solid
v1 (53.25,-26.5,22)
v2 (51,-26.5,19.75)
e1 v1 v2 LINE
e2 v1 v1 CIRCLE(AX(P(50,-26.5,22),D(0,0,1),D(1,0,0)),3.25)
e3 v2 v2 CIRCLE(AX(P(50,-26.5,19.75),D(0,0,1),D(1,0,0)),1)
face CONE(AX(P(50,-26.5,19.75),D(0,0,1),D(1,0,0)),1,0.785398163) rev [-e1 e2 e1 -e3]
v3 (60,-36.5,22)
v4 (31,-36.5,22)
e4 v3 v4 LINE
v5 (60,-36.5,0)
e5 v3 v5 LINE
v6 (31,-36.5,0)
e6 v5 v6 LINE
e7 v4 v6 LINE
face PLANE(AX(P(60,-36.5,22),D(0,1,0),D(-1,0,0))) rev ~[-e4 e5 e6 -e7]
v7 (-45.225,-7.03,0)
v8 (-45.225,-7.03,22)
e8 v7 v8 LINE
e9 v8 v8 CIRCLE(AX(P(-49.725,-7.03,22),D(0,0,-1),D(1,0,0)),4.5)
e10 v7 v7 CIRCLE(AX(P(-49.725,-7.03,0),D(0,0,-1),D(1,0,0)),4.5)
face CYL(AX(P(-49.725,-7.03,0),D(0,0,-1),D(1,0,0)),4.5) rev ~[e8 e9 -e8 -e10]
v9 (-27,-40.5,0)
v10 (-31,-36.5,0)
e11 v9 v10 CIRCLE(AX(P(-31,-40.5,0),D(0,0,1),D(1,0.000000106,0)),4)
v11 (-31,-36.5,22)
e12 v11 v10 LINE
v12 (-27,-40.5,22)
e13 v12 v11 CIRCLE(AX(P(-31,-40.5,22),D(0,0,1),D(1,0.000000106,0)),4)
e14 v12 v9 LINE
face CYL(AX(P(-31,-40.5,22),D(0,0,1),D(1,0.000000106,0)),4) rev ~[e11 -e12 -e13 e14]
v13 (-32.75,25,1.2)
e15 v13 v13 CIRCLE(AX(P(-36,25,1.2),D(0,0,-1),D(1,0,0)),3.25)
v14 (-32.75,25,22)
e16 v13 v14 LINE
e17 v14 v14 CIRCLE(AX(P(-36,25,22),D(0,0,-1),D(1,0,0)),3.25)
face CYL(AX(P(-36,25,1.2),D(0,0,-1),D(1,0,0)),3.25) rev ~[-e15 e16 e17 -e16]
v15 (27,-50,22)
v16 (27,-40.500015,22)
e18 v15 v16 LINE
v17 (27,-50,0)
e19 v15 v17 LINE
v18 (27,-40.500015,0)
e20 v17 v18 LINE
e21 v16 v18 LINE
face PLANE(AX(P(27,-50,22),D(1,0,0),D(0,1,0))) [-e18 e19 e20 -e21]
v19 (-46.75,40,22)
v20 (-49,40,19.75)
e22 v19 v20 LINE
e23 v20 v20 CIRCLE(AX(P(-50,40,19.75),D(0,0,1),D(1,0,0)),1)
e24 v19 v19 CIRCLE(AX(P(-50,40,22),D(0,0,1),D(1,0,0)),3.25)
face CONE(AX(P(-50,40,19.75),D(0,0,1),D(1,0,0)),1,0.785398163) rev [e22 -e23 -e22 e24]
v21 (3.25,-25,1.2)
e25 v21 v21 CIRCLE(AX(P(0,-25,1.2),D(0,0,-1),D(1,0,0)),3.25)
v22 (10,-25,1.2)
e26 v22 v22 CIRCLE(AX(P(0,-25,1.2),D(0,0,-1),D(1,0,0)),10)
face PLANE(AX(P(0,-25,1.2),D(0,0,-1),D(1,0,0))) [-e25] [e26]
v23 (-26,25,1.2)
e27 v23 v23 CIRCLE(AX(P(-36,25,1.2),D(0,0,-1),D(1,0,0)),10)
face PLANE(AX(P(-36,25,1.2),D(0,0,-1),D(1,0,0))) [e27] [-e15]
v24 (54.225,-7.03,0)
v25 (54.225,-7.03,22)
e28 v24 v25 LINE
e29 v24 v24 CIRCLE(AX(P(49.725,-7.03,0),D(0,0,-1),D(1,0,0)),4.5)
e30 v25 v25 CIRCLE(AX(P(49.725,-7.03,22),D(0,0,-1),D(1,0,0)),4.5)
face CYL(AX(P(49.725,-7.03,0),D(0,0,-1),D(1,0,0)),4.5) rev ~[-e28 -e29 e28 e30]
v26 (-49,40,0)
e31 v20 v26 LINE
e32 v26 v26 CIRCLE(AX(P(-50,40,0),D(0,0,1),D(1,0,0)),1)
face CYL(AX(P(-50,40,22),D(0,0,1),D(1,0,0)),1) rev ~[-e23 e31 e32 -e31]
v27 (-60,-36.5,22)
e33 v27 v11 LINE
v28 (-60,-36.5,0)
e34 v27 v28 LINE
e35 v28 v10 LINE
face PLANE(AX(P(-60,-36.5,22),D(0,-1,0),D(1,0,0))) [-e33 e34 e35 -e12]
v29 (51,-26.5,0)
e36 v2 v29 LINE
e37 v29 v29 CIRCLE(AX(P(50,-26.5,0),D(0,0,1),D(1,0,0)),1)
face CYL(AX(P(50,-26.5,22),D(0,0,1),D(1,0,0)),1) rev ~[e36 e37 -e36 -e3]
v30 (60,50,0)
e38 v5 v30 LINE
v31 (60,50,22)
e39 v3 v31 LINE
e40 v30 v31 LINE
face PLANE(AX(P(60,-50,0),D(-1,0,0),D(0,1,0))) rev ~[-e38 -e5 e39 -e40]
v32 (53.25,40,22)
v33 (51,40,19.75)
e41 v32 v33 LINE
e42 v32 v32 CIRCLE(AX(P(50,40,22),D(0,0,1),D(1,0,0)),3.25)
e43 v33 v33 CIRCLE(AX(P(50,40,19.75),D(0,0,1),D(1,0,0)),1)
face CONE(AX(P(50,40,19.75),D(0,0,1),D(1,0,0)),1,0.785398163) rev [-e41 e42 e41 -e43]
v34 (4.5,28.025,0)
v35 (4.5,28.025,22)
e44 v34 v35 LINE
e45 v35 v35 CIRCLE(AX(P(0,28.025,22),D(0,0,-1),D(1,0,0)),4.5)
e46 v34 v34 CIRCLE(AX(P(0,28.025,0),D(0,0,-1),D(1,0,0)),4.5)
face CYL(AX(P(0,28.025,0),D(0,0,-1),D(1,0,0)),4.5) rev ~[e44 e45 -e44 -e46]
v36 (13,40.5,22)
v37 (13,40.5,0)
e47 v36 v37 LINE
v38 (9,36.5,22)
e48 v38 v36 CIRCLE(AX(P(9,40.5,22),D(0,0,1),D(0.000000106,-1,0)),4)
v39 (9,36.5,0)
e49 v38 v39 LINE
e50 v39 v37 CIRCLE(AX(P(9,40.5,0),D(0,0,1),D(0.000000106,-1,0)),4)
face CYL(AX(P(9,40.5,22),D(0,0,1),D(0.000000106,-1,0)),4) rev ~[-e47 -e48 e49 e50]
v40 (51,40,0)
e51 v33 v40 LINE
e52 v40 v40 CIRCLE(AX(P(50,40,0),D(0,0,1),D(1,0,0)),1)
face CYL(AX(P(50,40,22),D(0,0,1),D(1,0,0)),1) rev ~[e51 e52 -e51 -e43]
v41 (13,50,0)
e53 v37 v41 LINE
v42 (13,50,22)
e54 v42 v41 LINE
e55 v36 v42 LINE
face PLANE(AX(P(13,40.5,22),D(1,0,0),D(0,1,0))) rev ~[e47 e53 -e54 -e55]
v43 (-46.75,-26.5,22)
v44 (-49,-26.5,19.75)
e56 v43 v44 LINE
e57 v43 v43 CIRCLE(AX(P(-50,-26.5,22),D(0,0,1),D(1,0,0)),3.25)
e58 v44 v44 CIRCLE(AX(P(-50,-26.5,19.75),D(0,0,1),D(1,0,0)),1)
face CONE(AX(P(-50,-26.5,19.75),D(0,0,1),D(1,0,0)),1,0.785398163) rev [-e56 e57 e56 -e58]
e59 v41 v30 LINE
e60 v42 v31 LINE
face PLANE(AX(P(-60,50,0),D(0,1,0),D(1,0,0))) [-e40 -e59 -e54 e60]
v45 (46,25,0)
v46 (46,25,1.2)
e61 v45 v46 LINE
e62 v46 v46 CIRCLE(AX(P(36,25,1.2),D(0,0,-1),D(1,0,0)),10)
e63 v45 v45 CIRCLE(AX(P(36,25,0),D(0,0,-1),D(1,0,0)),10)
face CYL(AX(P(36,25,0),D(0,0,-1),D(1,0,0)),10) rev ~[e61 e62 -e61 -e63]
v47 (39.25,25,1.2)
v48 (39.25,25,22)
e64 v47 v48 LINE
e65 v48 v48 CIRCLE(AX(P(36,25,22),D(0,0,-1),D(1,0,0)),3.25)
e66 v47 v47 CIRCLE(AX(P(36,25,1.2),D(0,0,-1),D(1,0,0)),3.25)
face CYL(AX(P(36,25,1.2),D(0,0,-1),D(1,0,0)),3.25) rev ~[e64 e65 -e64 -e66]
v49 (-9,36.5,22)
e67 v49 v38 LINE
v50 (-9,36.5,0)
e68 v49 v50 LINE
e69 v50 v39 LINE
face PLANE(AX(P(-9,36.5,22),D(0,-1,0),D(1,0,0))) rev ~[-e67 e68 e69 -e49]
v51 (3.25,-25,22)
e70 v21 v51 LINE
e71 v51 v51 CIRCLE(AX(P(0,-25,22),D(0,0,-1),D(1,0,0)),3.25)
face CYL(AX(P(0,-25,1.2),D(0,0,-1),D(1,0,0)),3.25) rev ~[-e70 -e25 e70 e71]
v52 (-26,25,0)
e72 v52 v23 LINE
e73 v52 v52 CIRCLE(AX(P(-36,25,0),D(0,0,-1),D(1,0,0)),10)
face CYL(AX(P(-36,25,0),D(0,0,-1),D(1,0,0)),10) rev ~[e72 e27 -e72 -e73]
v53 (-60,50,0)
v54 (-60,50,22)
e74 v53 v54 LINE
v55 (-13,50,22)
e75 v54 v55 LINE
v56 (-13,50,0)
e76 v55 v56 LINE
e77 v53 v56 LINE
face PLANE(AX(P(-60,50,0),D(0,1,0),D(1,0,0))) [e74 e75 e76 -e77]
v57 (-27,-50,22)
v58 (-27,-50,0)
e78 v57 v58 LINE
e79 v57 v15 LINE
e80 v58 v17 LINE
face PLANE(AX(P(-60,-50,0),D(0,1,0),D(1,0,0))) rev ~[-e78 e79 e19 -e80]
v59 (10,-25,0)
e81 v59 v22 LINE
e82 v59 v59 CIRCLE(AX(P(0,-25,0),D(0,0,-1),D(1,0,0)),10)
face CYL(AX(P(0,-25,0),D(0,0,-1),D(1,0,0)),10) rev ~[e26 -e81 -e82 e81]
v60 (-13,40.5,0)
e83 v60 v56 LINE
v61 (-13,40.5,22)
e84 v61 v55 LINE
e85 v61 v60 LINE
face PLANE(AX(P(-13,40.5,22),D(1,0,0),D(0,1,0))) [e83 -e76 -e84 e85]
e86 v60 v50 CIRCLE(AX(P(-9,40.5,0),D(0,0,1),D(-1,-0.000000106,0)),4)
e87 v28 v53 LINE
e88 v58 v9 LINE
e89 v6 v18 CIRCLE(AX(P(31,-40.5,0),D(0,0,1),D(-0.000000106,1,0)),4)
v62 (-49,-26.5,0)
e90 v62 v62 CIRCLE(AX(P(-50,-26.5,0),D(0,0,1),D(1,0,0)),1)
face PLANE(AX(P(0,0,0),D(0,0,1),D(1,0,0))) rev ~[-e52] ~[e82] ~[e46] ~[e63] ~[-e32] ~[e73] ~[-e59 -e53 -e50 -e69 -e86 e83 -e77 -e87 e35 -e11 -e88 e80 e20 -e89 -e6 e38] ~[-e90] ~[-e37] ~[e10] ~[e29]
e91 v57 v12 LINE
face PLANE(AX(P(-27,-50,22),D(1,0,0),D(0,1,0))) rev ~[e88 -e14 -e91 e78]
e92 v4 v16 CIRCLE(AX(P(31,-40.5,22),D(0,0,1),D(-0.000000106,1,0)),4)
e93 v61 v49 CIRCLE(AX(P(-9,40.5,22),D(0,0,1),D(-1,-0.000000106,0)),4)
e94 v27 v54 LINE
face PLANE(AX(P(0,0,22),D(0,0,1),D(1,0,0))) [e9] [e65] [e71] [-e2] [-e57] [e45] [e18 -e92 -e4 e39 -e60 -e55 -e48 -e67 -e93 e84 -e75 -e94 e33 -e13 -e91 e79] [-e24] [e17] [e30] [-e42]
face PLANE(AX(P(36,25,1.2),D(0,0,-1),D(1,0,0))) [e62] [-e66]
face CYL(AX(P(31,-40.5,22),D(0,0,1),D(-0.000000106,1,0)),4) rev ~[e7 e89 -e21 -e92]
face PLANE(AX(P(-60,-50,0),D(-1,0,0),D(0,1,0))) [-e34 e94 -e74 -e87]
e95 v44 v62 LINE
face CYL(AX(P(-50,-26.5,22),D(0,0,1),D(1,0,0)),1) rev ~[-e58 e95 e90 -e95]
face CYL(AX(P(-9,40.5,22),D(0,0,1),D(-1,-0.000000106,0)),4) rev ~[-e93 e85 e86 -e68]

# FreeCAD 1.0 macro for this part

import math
import FreeCAD as App
import Part
import Sketcher

V = App.Vector


def edges_at(feature, points):
    """Names of the edges that pass closest to the given points."""
    edges = feature.Shape.Edges
    near = lambda p: min(range(len(edges)), key=lambda i: edges[i].distToShape(Part.Vertex(*p))[0])
    return sorted({f"Edge{near(p) + 1}" for p in points})

doc = App.newDocument("Part")
body = doc.addObject("PartDesign::Body", "Body")

sketch1 = doc.addObject("Sketcher::SketchObject", "Sketch")
body.addObject(sketch1)
sketch1.AttachmentSupport = (doc.XY_Plane, [""])
sketch1.MapMode = "FlatFace"
sketch1.addGeometry(Part.LineSegment(V(-60, 50, 0), V(-60, -50, 0)), False)
sketch1.addGeometry(Part.LineSegment(V(-60, -50, 0), V(60, -50, 0)), False)
sketch1.addGeometry(Part.LineSegment(V(60, -50, 0), V(60, 50, 0)), False)
sketch1.addGeometry(Part.LineSegment(V(60, 50, 0), V(-60, 50, 0)), False)
sketch1.addConstraint(Sketcher.Constraint("Coincident", 0, 2, 1, 1))
sketch1.addConstraint(Sketcher.Constraint("Coincident", 1, 2, 2, 1))
sketch1.addConstraint(Sketcher.Constraint("Coincident", 2, 2, 3, 1))
sketch1.addConstraint(Sketcher.Constraint("Coincident", 3, 2, 0, 1))
sketch1.addConstraint(Sketcher.Constraint("Vertical", 0))
sketch1.addConstraint(Sketcher.Constraint("Horizontal", 1))
sketch1.addConstraint(Sketcher.Constraint("Vertical", 2))
sketch1.addConstraint(Sketcher.Constraint("Horizontal", 3))
sketch1.addConstraint(Sketcher.Constraint("Symmetric", 0, 2, 2, 2, -1, 1))
sketch1.addConstraint(Sketcher.Constraint("DistanceX", 1, 1, 1, 2, 120.0))
sketch1.addConstraint(Sketcher.Constraint("DistanceY", 0, 2, 0, 1, 100.0))
pad1 = doc.addObject("PartDesign::Pad", "Pad")
body.addObject(pad1)
pad1.Profile = sketch1
pad1.Length = 22

sketch2 = doc.addObject("Sketcher::SketchObject", "Sketch001")
body.addObject(sketch2)
sketch2.AttachmentSupport = (doc.XY_Plane, [""])
sketch2.MapMode = "FlatFace"
sketch2.addGeometry(Part.Circle(V(-49.725, -7.03, 0), V(0, 0, 1), 4.5), False)
sketch2.addGeometry(Part.Circle(V(0, 28.025, 0), V(0, 0, 1), 4.5), False)
sketch2.addGeometry(Part.Circle(V(49.725, -7.03, 0), V(0, 0, 1), 4.5), False)
sketch2.addConstraint(Sketcher.Constraint("Equal", 0, 1))
sketch2.addConstraint(Sketcher.Constraint("Equal", 1, 2))
sketch2.addConstraint(Sketcher.Constraint("Symmetric", 0, 3, 2, 3, -2))
sketch2.addConstraint(Sketcher.Constraint("PointOnObject", 1, 3, -2))
sketch2.addConstraint(Sketcher.Constraint("Diameter", 0, 9.0))
sketch2.addConstraint(Sketcher.Constraint("DistanceY", 0, 3, -1, 1, 7.03))
sketch2.addConstraint(Sketcher.Constraint("DistanceX", 0, 3, 2, 3, 99.45))
sketch2.addConstraint(Sketcher.Constraint("DistanceY", -1, 1, 1, 3, 28.025))
pocket1 = doc.addObject("PartDesign::Pocket", "Pocket")
body.addObject(pocket1)
pocket1.Profile = sketch2
pocket1.Type = "ThroughAll"
pocket1.Reversed = True

sketch3 = doc.addObject("Sketcher::SketchObject", "Sketch002")
body.addObject(sketch3)
sketch3.AttachmentSupport = (doc.XY_Plane, [""])
sketch3.MapMode = "FlatFace"
sketch3.AttachmentOffset = App.Placement(V(0, 0, 22), App.Rotation())
sketch3.addGeometry(Part.LineSegment(V(-60, -36.5, 0), V(-60, -50, 0)), False)
sketch3.addGeometry(Part.LineSegment(V(-60, -50, 0), V(-27, -50, 0)), False)
sketch3.addGeometry(Part.LineSegment(V(-27, -50, 0), V(-27, -40.5, 0)), False)
sketch3.addGeometry(Part.ArcOfCircle(Part.Circle(V(-31, -40.5, 0), V(0, 0, 1), 4), math.radians(0.000006), math.radians(89.999994)), False)
sketch3.addGeometry(Part.LineSegment(V(-31, -36.5, 0), V(-60, -36.5, 0)), False)
sketch3.addGeometry(Part.LineSegment(V(60, -50, 0), V(60, -36.5, 0)), False)
sketch3.addGeometry(Part.LineSegment(V(60, -36.5, 0), V(31, -36.5, 0)), False)
sketch3.addGeometry(Part.ArcOfCircle(Part.Circle(V(31, -40.5, 0), V(0, 0, 1), 4), math.radians(90.000006), math.radians(180.000209)), False)
sketch3.addGeometry(Part.LineSegment(V(27, -40.500015, 0), V(27, -50, 0)), False)
sketch3.addGeometry(Part.LineSegment(V(27, -50, 0), V(60, -50, 0)), False)
sketch3.addGeometry(Part.LineSegment(V(13, 50, 0), V(-13, 50, 0)), False)
sketch3.addGeometry(Part.LineSegment(V(-13, 50, 0), V(-13, 40.5, 0)), False)
sketch3.addGeometry(Part.ArcOfCircle(Part.Circle(V(-9, 40.5, 0), V(0, 0, 1), 4), math.radians(-179.999994), math.radians(-90.000006)), False)
sketch3.addGeometry(Part.LineSegment(V(-9, 36.5, 0), V(9, 36.5, 0)), False)
sketch3.addGeometry(Part.ArcOfCircle(Part.Circle(V(9, 40.5, 0), V(0, 0, 1), 4), math.radians(-89.999994), math.radians(-0.000006)), False)
sketch3.addGeometry(Part.LineSegment(V(13, 40.5, 0), V(13, 50, 0)), False)
sketch3.addConstraint(Sketcher.Constraint("Coincident", 0, 2, 1, 1))
sketch3.addConstraint(Sketcher.Constraint("Coincident", 1, 2, 2, 1))
sketch3.addConstraint(Sketcher.Constraint("Tangent", 2, 2, 3, 1))
sketch3.addConstraint(Sketcher.Constraint("Tangent", 3, 2, 4, 1))
sketch3.addConstraint(Sketcher.Constraint("Coincident", 4, 2, 0, 1))
sketch3.addConstraint(Sketcher.Constraint("Coincident", 5, 2, 6, 1))
sketch3.addConstraint(Sketcher.Constraint("Tangent", 6, 2, 7, 1))
sketch3.addConstraint(Sketcher.Constraint("Coincident", 7, 2, 8, 1))
sketch3.addConstraint(Sketcher.Constraint("Coincident", 8, 2, 9, 1))
sketch3.addConstraint(Sketcher.Constraint("Coincident", 9, 2, 5, 1))
sketch3.addConstraint(Sketcher.Constraint("Coincident", 10, 2, 11, 1))
sketch3.addConstraint(Sketcher.Constraint("Tangent", 11, 2, 12, 1))
sketch3.addConstraint(Sketcher.Constraint("Tangent", 12, 2, 13, 1))
sketch3.addConstraint(Sketcher.Constraint("Tangent", 13, 2, 14, 1))
sketch3.addConstraint(Sketcher.Constraint("Tangent", 14, 2, 15, 1))
sketch3.addConstraint(Sketcher.Constraint("Coincident", 15, 2, 10, 1))
sketch3.addConstraint(Sketcher.Constraint("Vertical", 0))
sketch3.addConstraint(Sketcher.Constraint("Horizontal", 1))
sketch3.addConstraint(Sketcher.Constraint("Vertical", 2))
sketch3.addConstraint(Sketcher.Constraint("Horizontal", 4))
sketch3.addConstraint(Sketcher.Constraint("Vertical", 5))
sketch3.addConstraint(Sketcher.Constraint("Horizontal", 6))
sketch3.addConstraint(Sketcher.Constraint("Vertical", 8))
sketch3.addConstraint(Sketcher.Constraint("Horizontal", 9))
sketch3.addConstraint(Sketcher.Constraint("Horizontal", 10))
sketch3.addConstraint(Sketcher.Constraint("Vertical", 11))
sketch3.addConstraint(Sketcher.Constraint("Horizontal", 13))
sketch3.addConstraint(Sketcher.Constraint("Vertical", 15))
sketch3.addConstraint(Sketcher.Constraint("Equal", 3, 7))
sketch3.addConstraint(Sketcher.Constraint("Equal", 7, 12))
sketch3.addConstraint(Sketcher.Constraint("Equal", 12, 14))
sketch3.addConstraint(Sketcher.Constraint("Symmetric", 3, 3, 7, 3, -2))
sketch3.addConstraint(Sketcher.Constraint("Symmetric", 0, 2, 9, 2, -2))
sketch3.addConstraint(Sketcher.Constraint("Equal", 2, 11))
sketch3.addConstraint(Sketcher.Constraint("Radius", 3, 4.0))
sketch3.addConstraint(Sketcher.Constraint("DistanceX", 1, 1, 1, 2, 33.0))
sketch3.addConstraint(Sketcher.Constraint("DistanceX", 10, 2, 10, 1, 26.0))
sketch3.addConstraint(Sketcher.Constraint("DistanceY", 0, 2, 0, 1, 13.5))
sketch3.addConstraint(Sketcher.Constraint("DistanceX", 3, 3, -1, 1, 31.0))
sketch3.addConstraint(Sketcher.Constraint("DistanceX", 12, 3, -1, 1, 9.0))
sketch3.addConstraint(Sketcher.Constraint("DistanceY", 0, 2, -1, 1, 50.0))
sketch3.addConstraint(Sketcher.Constraint("DistanceY", -1, 1, 10, 2, 50.0))
sketch3.addConstraint(Sketcher.Constraint("DistanceY", 8, 2, 8, 1, 9.499985))
pocket2 = doc.addObject("PartDesign::Pocket", "Pocket001")
body.addObject(pocket2)
pocket2.Profile = sketch3
pocket2.Type = "ThroughAll"

sketch4 = doc.addObject("Sketcher::SketchObject", "Sketch003")
body.addObject(sketch4)
sketch4.AttachmentSupport = (doc.XY_Plane, [""])
sketch4.MapMode = "FlatFace"
sketch4.AttachmentOffset = App.Placement(V(0, 0, 22), App.Rotation())
sketch4.addGeometry(Part.Circle(V(50, -26.5, 0), V(0, 0, 1), 1), False)
sketch4.addGeometry(Part.Circle(V(-50, -26.5, 0), V(0, 0, 1), 1), False)
sketch4.addGeometry(Part.Circle(V(50, 40, 0), V(0, 0, 1), 1), False)
sketch4.addGeometry(Part.Circle(V(-50, 40, 0), V(0, 0, 1), 1), False)
sketch4.addConstraint(Sketcher.Constraint("Equal", 0, 1))
sketch4.addConstraint(Sketcher.Constraint("Equal", 1, 2))
sketch4.addConstraint(Sketcher.Constraint("Equal", 2, 3))
sketch4.addConstraint(Sketcher.Constraint("Symmetric", 0, 3, 1, 3, -2))
sketch4.addConstraint(Sketcher.Constraint("Symmetric", 2, 3, 3, 3, -2))
sketch4.addConstraint(Sketcher.Constraint("Vertical", 0, 3, 2, 3))
sketch4.addConstraint(Sketcher.Constraint("Diameter", 0, 2.0))
sketch4.addConstraint(Sketcher.Constraint("DistanceX", -1, 1, 0, 3, 50.0))
sketch4.addConstraint(Sketcher.Constraint("DistanceY", -1, 1, 2, 3, 40.0))
sketch4.addConstraint(Sketcher.Constraint("DistanceY", 0, 3, -1, 1, 26.5))
pocket3 = doc.addObject("PartDesign::Pocket", "Pocket002")
body.addObject(pocket3)
pocket3.Profile = sketch4
pocket3.Type = "ThroughAll"

sketch5 = doc.addObject("Sketcher::SketchObject", "Sketch004")
body.addObject(sketch5)
sketch5.AttachmentSupport = (doc.XY_Plane, [""])
sketch5.MapMode = "FlatFace"
sketch5.addGeometry(Part.Circle(V(0, -25, 0), V(0, 0, 1), 10), False)
sketch5.addGeometry(Part.Circle(V(-36, 25, 0), V(0, 0, 1), 10), False)
sketch5.addGeometry(Part.Circle(V(36, 25, 0), V(0, 0, 1), 10), False)
sketch5.addConstraint(Sketcher.Constraint("Equal", 0, 1))
sketch5.addConstraint(Sketcher.Constraint("Equal", 1, 2))
sketch5.addConstraint(Sketcher.Constraint("Symmetric", 1, 3, 2, 3, -2))
sketch5.addConstraint(Sketcher.Constraint("PointOnObject", 0, 3, -2))
sketch5.addConstraint(Sketcher.Constraint("Diameter", 0, 20.0))
sketch5.addConstraint(Sketcher.Constraint("DistanceY", 0, 3, -1, 1, 25.0))
sketch5.addConstraint(Sketcher.Constraint("DistanceX", 1, 3, -1, 1, 36.0))
sketch5.addConstraint(Sketcher.Constraint("DistanceY", -1, 1, 1, 3, 25.0))
pocket4 = doc.addObject("PartDesign::Pocket", "Pocket003")
body.addObject(pocket4)
pocket4.Profile = sketch5
pocket4.Length = 1.2
pocket4.Reversed = True

sketch6 = doc.addObject("Sketcher::SketchObject", "Sketch005")
body.addObject(sketch6)
sketch6.AttachmentSupport = (doc.XY_Plane, [""])
sketch6.MapMode = "FlatFace"
sketch6.AttachmentOffset = App.Placement(V(0, 0, 1.2), App.Rotation())
sketch6.addGeometry(Part.Circle(V(0, -25, 0), V(0, 0, 1), 3.25), False)
sketch6.addGeometry(Part.Circle(V(36, 25, 0), V(0, 0, 1), 3.25), False)
sketch6.addGeometry(Part.Circle(V(-36, 25, 0), V(0, 0, 1), 3.25), False)
sketch6.addConstraint(Sketcher.Constraint("Equal", 0, 1))
sketch6.addConstraint(Sketcher.Constraint("Equal", 1, 2))
sketch6.addConstraint(Sketcher.Constraint("Symmetric", 1, 3, 2, 3, -2))
sketch6.addConstraint(Sketcher.Constraint("PointOnObject", 0, 3, -2))
sketch6.addConstraint(Sketcher.Constraint("Diameter", 0, 6.5))
sketch6.addConstraint(Sketcher.Constraint("DistanceY", 0, 3, -1, 1, 25.0))
sketch6.addConstraint(Sketcher.Constraint("DistanceX", -1, 1, 1, 3, 36.0))
sketch6.addConstraint(Sketcher.Constraint("DistanceY", -1, 1, 1, 3, 25.0))
pocket5 = doc.addObject("PartDesign::Pocket", "Pocket004")
body.addObject(pocket5)
pocket5.Profile = sketch6
pocket5.Type = "ThroughAll"
pocket5.Reversed = True
doc.recompute()

chamfer = doc.addObject("PartDesign::Chamfer", "Chamfer")
body.addObject(chamfer)
chamfer.Base = (pocket5, edges_at(pocket5, [
    (49, 40, 22),
    (49, -26.5, 22),
    (-51, -26.5, 22),
    (-51, 40, 22),
]))
chamfer.Size = 2.25

doc.recompute()
